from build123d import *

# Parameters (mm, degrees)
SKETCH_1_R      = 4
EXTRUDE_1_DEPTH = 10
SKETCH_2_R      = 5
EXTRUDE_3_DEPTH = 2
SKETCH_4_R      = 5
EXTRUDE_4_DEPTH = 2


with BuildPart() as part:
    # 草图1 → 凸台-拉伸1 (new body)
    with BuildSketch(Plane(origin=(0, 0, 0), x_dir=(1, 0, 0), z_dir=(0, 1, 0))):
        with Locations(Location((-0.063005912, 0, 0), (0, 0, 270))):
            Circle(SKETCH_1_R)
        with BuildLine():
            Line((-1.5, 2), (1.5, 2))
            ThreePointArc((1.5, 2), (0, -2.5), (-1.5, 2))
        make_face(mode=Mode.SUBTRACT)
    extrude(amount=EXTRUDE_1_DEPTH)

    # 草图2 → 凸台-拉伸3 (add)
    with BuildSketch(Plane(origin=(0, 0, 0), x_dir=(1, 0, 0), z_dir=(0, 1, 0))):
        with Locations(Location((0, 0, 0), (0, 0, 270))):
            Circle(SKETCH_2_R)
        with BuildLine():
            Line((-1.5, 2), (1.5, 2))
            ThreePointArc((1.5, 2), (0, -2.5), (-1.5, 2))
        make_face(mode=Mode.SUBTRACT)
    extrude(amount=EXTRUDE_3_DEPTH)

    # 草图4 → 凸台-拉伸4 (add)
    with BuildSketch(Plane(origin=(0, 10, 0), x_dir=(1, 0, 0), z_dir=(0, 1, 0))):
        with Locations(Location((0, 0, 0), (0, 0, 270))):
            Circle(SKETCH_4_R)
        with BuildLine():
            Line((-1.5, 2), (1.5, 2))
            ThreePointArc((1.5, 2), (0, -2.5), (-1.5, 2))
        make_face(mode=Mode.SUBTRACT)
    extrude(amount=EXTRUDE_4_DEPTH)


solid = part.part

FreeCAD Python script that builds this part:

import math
import FreeCAD as App
import Part
import Sketcher

V = App.Vector
Q = App.Units.Quantity

doc = App.newDocument("Part")
body = doc.addObject("PartDesign::Body", "Body")

# Sketch on XZ plane
sketch1 = body.newObject("Sketcher::SketchObject", "Sketch")
sketch1.AttachmentSupport = (doc.getObject("XZ_Plane"), [""])
sketch1.MapMode = "FlatFace"
sketch1.addGeometry([
    Part.Circle(V(-0.1, 0, 0), V(0, 0, 1), 4),
    Part.ArcOfCircle(Part.Circle(V(0, 0, 0), V(0, 0, 1), 2.5), math.radians(-53), math.radians(233)),
    Part.LineSegment(V(-1.5, -2, 0), V(1.5, -2, 0)),
], False)
sketch1.addConstraint([
    Sketcher.Constraint("Coincident", 1, 1, 2, 2),
    Sketcher.Constraint("Coincident", 2, 1, 1, 2),
    Sketcher.Constraint("Horizontal", 2),
    Sketcher.Constraint("Coincident", 1, 3, -1, 1),
    Sketcher.Constraint("PointOnObject", 0, 3, -1),
    Sketcher.Constraint("Diameter", 0, Q("8 mm")),
    Sketcher.Constraint("Radius", 1, Q("2.5 mm")),
    Sketcher.Constraint("DistanceX", 2, 1, 2, 2, Q("3 mm")),
    Sketcher.Constraint("DistanceX", 0, 3, -1, 1, Q("0.063006 mm")),
])
pad1 = body.newObject("PartDesign::Pad", "Pad")
pad1.Profile = sketch1
pad1.Length = 10
pad1.Reversed = True

# Sketch on XZ plane
sketch2 = body.newObject("Sketcher::SketchObject", "Sketch001")
sketch2.AttachmentSupport = (doc.getObject("XZ_Plane"), [""])
sketch2.MapMode = "FlatFace"
sketch2.addGeometry([
    Part.Circle(V(0, 0, 0), V(0, 0, 1), 5),
    Part.ArcOfCircle(Part.Circle(V(0, 0, 0), V(0, 0, 1), 2.5), math.radians(-53), math.radians(233)),
    Part.LineSegment(V(-1.5, -2, 0), V(1.5, -2, 0)),
], False)
sketch2.addConstraint([
    Sketcher.Constraint("Coincident", 1, 1, 2, 2),
    Sketcher.Constraint("Coincident", 2, 1, 1, 2),
    Sketcher.Constraint("Horizontal", 2),
    Sketcher.Constraint("Coincident", 0, 3, -1, 1),
    Sketcher.Constraint("Coincident", 1, 3, -1, 1),
    Sketcher.Constraint("Diameter", 0, Q("10 mm")),
    Sketcher.Constraint("Radius", 1, Q("2.5 mm")),
    Sketcher.Constraint("DistanceX", 2, 1, 2, 2, Q("3 mm")),
])
pad2 = body.newObject("PartDesign::Pad", "Pad001")
pad2.Profile = sketch2
pad2.Length = 2
pad2.Reversed = True

# Sketch on XZ plane
sketch3 = body.newObject("Sketcher::SketchObject", "Sketch002")
sketch3.AttachmentSupport = (doc.getObject("XZ_Plane"), [""])
sketch3.MapMode = "FlatFace"
sketch3.AttachmentOffset = App.Placement(V(0, 0, -10), App.Rotation())
sketch3.addGeometry([
    Part.Circle(V(0, 0, 0), V(0, 0, 1), 5),
    Part.ArcOfCircle(Part.Circle(V(0, 0, 0), V(0, 0, 1), 2.5), math.radians(-53), math.radians(233)),
    Part.LineSegment(V(-1.5, -2, 0), V(1.5, -2, 0)),
], False)
sketch3.addConstraint([
    Sketcher.Constraint("Coincident", 1, 1, 2, 2),
    Sketcher.Constraint("Coincident", 2, 1, 1, 2),
    Sketcher.Constraint("Horizontal", 2),
    Sketcher.Constraint("Coincident", 0, 3, -1, 1),
    Sketcher.Constraint("Coincident", 1, 3, -1, 1),
    Sketcher.Constraint("Diameter", 0, Q("10 mm")),
    Sketcher.Constraint("Radius", 1, Q("2.5 mm")),
    Sketcher.Constraint("DistanceX", 2, 1, 2, 2, Q("3 mm")),
])
pad3 = body.newObject("PartDesign::Pad", "Pad002")
pad3.Profile = sketch3
pad3.Length = 2
pad3.Reversed = True

doc.recompute()
